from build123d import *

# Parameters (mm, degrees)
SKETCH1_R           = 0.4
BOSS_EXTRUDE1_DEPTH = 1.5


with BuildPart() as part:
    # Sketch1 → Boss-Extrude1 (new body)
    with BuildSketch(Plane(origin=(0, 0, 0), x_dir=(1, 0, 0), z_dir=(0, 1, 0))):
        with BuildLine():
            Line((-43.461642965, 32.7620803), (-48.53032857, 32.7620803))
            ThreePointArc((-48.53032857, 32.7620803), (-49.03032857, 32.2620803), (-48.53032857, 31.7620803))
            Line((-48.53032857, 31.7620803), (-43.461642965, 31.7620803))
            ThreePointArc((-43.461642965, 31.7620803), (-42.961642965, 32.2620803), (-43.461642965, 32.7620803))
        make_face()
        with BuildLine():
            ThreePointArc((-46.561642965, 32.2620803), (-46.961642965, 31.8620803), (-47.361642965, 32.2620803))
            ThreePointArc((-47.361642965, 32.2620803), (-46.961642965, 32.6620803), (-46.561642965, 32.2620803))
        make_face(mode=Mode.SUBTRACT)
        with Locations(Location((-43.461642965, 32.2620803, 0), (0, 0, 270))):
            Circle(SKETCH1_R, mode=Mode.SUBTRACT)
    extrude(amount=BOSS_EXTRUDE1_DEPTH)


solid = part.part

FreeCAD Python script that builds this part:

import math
import FreeCAD as App
import Part
import Sketcher

V = App.Vector
Q = App.Units.Quantity

doc = App.newDocument("Part")
params = doc.addObject("Spreadsheet::Sheet", "Params")
for row, (alias, value) in enumerate([
    ("sketch1_diameter", "0.8 mm"),
    ("sketch1_radius", "0.5 mm"),
    ("pad1_length", "1.5 mm"),
], start=1):
    params.set(f"A{row}", alias)
    params.set(f"B{row}", "=" + value)
    params.setAlias(f"B{row}", alias)

body = doc.addObject("PartDesign::Body", "Body")

sketch1 = body.newObject("Sketcher::SketchObject", "Sketch")
sketch1.AttachmentSupport = (doc.getObject("XZ_Plane"), [""])
sketch1.MapMode = "FlatFace"
sketch1.addGeometry([
    Part.LineSegment(V(-43.461643, -32.76208, 0), V(-48.530329, -32.76208, 0)),
    Part.ArcOfCircle(Part.Circle(V(-48.530329, -32.26208, 0), V(0, 0, 1), 0.5), math.radians(90), math.radians(270)),
    Part.LineSegment(V(-48.530329, -31.76208, 0), V(-43.461643, -31.76208, 0)),
    Part.ArcOfCircle(Part.Circle(V(-43.461643, -32.26208, 0), V(0, 0, 1), 0.5), math.radians(-90), math.radians(90)),
    Part.Circle(V(-46.961643, -32.26208, 0), V(0, 0, 1), 0.4),
    Part.Circle(V(-43.461643, -32.26208, 0), V(0, 0, 1), 0.4),
], False)
sketch1.addConstraint([
    Sketcher.Constraint("Tangent", 0, 2, 1, 2),
    Sketcher.Constraint("Tangent", 1, 1, 2, 1),
    Sketcher.Constraint("Tangent", 2, 2, 3, 2),
    Sketcher.Constraint("Tangent", 3, 1, 0, 1),
    Sketcher.Constraint("Horizontal", 0),
    Sketcher.Constraint("Horizontal", 2),
    Sketcher.Constraint("Coincident", 5, 3, 3, 3),
    Sketcher.Constraint("Equal", 4, 5),
    Sketcher.Constraint("Horizontal", 3, 3, 4, 3),
    Sketcher.Constraint("Diameter", 4, Q("0.8 mm")),
    Sketcher.Constraint("Radius", 1, Q("0.5 mm")),
    Sketcher.Constraint("DistanceX", 4, 3, 3, 3, Q("3.5 mm")),
    Sketcher.Constraint("DistanceX", 0, 2, 0, 1, Q("5.068686 mm")),
    Sketcher.Constraint("DistanceX", 1, 3, -1, 1, Q("48.530329 mm")),
    Sketcher.Constraint("DistanceY", 1, 3, -1, 1, Q("32.26208 mm")),
])
sketch1.setExpression("Constraints[9]", "Params.sketch1_diameter")
sketch1.setExpression("Constraints[10]", "Params.sketch1_radius")
pad1 = body.newObject("PartDesign::Pad", "Pad")
pad1.Profile = sketch1
pad1.setExpression("Length", "Params.pad1_length")
pad1.Reversed = True

doc.recompute()
